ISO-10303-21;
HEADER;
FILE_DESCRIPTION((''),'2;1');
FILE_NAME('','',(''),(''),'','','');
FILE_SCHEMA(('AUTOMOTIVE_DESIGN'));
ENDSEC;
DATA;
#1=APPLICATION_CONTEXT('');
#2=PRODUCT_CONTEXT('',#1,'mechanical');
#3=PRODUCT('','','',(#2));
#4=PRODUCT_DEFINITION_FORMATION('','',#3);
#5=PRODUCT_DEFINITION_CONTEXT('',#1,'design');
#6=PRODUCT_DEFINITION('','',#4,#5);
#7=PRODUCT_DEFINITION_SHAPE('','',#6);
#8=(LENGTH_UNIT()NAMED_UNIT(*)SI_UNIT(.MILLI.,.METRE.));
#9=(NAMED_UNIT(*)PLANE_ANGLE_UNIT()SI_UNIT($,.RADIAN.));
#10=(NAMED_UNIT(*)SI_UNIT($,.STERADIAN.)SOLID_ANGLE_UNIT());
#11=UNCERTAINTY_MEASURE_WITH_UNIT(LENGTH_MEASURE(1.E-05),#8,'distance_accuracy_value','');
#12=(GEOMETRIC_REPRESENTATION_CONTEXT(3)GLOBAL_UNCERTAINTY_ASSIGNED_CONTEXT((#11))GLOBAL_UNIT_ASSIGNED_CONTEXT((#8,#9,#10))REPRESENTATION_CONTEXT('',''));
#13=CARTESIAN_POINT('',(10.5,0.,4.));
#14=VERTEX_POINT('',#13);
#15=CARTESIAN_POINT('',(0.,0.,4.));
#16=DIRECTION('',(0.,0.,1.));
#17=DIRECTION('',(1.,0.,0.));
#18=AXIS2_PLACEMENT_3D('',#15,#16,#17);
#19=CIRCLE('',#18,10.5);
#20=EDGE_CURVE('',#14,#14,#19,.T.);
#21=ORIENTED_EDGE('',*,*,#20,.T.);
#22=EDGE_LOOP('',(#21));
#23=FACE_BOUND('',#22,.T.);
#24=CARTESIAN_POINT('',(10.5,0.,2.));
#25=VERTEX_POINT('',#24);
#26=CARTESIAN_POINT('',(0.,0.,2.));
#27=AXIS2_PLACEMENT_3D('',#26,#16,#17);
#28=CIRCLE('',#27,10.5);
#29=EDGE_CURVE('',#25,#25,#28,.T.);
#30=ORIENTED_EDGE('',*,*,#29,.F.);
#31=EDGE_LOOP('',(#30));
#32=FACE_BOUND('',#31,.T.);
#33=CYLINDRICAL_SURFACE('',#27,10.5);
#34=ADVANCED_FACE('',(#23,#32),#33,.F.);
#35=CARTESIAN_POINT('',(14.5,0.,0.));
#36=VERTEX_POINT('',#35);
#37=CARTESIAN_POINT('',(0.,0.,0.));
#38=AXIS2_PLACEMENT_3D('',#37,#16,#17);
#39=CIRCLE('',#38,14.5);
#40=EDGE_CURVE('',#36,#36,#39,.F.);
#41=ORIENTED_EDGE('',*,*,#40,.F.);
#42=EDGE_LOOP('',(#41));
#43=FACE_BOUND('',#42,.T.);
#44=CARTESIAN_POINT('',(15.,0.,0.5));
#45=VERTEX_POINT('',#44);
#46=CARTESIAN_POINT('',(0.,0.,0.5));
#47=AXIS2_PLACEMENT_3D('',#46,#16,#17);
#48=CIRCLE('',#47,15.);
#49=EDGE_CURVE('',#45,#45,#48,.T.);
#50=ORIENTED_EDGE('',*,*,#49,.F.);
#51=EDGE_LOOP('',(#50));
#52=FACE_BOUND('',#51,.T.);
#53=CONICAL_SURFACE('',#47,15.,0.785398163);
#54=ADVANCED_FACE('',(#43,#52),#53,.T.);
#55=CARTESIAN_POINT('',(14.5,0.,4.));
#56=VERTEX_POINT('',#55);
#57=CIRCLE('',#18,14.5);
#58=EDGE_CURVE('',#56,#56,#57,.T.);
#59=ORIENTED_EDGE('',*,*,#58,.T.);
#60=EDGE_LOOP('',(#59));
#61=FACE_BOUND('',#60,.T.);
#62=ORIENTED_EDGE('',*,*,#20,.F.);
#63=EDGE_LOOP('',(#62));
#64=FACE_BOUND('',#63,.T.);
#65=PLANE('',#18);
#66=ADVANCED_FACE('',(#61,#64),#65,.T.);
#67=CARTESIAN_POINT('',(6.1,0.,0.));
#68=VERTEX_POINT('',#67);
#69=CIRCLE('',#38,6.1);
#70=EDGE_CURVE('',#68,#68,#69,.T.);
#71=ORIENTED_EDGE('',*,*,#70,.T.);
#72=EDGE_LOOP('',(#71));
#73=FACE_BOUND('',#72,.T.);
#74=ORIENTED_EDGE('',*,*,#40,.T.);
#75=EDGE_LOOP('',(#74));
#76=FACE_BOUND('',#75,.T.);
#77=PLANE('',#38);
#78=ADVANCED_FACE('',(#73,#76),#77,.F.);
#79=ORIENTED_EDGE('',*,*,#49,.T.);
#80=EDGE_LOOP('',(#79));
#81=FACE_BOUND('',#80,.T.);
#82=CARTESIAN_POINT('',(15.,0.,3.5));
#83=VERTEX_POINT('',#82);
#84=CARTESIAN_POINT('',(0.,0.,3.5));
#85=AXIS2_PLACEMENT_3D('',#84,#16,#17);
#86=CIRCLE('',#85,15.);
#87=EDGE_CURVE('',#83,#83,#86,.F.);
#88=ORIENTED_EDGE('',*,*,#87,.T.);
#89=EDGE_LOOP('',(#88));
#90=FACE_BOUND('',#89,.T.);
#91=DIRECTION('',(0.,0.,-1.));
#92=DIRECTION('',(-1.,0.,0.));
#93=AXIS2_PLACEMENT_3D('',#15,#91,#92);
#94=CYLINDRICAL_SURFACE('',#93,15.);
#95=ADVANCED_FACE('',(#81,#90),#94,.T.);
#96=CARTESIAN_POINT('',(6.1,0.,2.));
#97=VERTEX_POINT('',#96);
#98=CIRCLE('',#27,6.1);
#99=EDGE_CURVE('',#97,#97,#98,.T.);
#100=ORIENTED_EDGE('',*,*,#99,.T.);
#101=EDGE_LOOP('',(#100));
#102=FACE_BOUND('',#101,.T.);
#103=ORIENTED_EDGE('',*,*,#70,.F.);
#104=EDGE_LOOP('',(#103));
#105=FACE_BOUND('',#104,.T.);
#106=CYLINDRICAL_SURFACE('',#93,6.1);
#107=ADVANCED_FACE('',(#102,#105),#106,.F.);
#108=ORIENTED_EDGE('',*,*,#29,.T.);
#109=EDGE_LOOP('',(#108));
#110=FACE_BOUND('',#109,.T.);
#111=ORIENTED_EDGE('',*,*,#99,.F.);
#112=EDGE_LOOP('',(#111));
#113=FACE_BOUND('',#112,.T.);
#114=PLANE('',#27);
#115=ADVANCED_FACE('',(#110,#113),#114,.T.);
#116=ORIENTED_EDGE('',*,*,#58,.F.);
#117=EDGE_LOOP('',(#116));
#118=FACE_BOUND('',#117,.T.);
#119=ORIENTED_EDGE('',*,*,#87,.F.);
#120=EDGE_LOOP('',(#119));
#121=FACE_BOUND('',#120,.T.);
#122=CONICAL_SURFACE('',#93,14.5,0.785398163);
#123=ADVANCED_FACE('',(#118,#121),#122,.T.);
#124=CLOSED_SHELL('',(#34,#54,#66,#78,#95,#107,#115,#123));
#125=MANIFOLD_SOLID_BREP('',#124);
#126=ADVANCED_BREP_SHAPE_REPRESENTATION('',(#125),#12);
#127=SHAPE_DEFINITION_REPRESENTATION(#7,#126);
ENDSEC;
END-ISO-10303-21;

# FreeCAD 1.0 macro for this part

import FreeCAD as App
import Part
import Sketcher
from FreeCAD import Vector


def edges_at(feature, points):
    """Names of the edges that pass closest to the given points."""
    edges = feature.Shape.Edges
    near = lambda p: min(range(len(edges)), key=lambda i: edges[i].distToShape(Part.Vertex(*p))[0])
    return sorted({f"Edge{near(p) + 1}" for p in points})

doc = App.newDocument("Part")
body = doc.addObject("PartDesign::Body", "Body")

# Sketch on XY plane
sketch1 = body.newObject("Sketcher::SketchObject", "Sketch")
sketch1.AttachmentSupport = (doc.getObject("XY_Plane"), [""])
sketch1.MapMode = "FlatFace"
sketch1.addGeometry([
    Part.Circle(Vector(0, 0, 0), Vector(0, 0, 1), 15),
    Part.Circle(Vector(0, 0, 0), Vector(0, 0, 1), 6),
], False)
sketch1.addConstraint([
    Sketcher.Constraint("Coincident", 0, 3, -1, 1),
    Sketcher.Constraint("Coincident", 1, 3, -1, 1),
    Sketcher.Constraint("Diameter", 0, 30.0),
    Sketcher.Constraint("Diameter", 1, 12.2),
])
pad1 = body.newObject("PartDesign::Pad", "Pad")
pad1.Profile = sketch1
pad1.Length = 4

# Sketch on XY plane
sketch2 = body.newObject("Sketcher::SketchObject", "Sketch001")
sketch2.AttachmentSupport = (doc.getObject("XY_Plane"), [""])
sketch2.MapMode = "FlatFace"
sketch2.AttachmentOffset = App.Placement(Vector(0, 0, 4), App.Rotation())
sketch2.addGeometry(Part.Circle(Vector(0, 0, 0), Vector(0, 0, 1), 10), False)
sketch2.addConstraint([
    Sketcher.Constraint("Coincident", 0, 3, -1, 1),
    Sketcher.Constraint("Diameter", 0, 21.0),
])
pocket1 = body.newObject("PartDesign::Pocket", "Pocket")
pocket1.Profile = sketch2
pocket1.Length = 2
doc.recompute()

chamfer = body.newObject("PartDesign::Chamfer", "Chamfer")
chamfer.Base = (pocket1, edges_at(pocket1, [(-15, 0, 0), (-15, 0, 4)]))
chamfer.Size = 0.5

doc.recompute()
